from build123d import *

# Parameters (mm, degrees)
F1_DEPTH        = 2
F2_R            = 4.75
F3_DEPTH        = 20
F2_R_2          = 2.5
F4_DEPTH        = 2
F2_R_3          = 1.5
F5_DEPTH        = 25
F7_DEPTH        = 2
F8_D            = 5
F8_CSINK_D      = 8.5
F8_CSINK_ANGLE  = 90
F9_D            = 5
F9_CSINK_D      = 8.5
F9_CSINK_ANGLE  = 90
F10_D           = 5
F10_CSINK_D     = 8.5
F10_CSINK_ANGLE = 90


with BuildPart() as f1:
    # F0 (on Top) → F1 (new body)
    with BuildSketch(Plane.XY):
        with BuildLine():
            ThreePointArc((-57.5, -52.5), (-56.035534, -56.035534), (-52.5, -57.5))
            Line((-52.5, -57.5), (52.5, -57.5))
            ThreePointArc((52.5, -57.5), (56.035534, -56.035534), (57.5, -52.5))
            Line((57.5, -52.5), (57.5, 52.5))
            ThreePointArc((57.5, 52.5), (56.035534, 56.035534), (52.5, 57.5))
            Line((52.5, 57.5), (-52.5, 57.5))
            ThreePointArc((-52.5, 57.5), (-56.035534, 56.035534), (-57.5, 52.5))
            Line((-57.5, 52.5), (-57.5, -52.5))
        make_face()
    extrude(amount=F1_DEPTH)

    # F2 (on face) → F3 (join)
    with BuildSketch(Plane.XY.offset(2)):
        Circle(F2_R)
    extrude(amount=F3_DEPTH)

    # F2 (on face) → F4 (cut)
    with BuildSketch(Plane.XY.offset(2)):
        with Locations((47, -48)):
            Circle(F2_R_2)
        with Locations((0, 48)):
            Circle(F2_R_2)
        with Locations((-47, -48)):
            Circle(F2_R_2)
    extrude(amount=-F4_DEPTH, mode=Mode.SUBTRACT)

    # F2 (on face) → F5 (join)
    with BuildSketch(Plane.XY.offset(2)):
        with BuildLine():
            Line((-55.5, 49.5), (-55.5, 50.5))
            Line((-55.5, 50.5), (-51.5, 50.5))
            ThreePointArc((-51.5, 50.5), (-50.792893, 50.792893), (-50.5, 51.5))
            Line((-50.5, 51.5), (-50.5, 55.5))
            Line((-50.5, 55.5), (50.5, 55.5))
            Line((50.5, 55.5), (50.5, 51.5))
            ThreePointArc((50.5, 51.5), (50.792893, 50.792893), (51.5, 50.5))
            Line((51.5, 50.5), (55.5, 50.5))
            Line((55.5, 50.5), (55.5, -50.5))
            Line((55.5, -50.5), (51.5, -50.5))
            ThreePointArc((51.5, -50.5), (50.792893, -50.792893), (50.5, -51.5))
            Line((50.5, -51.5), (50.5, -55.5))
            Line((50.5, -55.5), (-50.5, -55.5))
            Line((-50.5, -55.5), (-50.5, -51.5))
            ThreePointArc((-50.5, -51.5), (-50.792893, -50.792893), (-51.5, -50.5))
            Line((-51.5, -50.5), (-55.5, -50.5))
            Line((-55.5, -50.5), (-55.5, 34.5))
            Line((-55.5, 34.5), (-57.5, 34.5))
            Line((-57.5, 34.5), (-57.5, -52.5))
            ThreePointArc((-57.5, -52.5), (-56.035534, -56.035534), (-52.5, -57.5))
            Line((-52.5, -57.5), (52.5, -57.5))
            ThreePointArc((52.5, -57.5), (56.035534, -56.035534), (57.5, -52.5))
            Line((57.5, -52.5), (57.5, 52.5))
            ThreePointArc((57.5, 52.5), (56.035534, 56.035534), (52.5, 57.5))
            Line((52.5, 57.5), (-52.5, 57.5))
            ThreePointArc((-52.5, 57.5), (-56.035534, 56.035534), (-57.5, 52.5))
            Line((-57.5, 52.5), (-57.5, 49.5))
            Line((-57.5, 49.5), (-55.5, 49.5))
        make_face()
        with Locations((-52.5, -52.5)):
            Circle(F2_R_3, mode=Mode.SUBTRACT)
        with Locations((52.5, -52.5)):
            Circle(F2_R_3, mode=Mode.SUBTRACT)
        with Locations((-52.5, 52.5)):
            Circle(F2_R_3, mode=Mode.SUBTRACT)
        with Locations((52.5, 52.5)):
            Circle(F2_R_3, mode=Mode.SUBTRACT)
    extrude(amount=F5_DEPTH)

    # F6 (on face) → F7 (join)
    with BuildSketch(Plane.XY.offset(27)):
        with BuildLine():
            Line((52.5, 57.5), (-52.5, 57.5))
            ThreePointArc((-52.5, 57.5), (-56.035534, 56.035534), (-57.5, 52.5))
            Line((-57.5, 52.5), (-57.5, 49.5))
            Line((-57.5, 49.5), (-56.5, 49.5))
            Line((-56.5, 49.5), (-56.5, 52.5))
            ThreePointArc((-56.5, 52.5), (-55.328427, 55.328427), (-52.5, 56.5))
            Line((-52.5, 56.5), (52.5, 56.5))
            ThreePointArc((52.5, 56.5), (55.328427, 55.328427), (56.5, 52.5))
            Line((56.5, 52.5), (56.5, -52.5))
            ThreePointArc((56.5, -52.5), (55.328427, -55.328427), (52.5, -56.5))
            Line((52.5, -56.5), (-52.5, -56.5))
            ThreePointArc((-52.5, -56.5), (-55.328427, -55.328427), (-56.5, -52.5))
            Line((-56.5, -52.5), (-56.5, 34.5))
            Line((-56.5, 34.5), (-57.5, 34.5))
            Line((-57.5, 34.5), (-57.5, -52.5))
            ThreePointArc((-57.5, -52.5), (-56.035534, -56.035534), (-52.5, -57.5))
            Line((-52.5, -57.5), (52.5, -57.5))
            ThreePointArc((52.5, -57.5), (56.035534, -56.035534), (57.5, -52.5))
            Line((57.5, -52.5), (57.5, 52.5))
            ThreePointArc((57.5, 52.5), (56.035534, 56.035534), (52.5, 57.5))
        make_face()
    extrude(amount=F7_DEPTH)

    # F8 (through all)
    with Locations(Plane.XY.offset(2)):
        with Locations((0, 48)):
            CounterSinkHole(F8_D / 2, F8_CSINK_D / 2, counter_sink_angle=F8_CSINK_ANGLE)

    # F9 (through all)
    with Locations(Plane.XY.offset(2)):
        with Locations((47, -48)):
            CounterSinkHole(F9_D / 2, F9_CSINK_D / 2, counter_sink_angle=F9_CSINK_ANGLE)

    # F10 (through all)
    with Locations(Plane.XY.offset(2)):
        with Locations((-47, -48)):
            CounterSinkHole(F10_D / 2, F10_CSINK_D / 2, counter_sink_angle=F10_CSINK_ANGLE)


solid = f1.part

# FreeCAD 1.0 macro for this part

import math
import FreeCAD as App
import Part
import Sketcher

V = App.Vector

doc = App.newDocument("Part")
body = doc.addObject("PartDesign::Body", "Body")

sketch1 = doc.addObject("Sketcher::SketchObject", "Sketch")
body.addObject(sketch1)
sketch1.AttachmentSupport = (doc.XY_Plane, [""])
sketch1.MapMode = "FlatFace"
sketch1.addGeometry(Part.ArcOfCircle(Part.Circle(V(-52.5, -52.5, 0), V(0, 0, 1), 5), math.radians(179.999996), math.radians(270.000004)), False)
sketch1.addGeometry(Part.LineSegment(V(-52.5, -57.5, 0), V(52.5, -57.5, 0)), False)
sketch1.addGeometry(Part.ArcOfCircle(Part.Circle(V(52.5, -52.5, 0), V(0, 0, 1), 5), math.radians(-90.000004), math.radians(0.000004)), False)
sketch1.addGeometry(Part.LineSegment(V(57.5, -52.5, 0), V(57.5, 52.5, 0)), False)
sketch1.addGeometry(Part.ArcOfCircle(Part.Circle(V(52.5, 52.5, 0), V(0, 0, 1), 5), math.radians(-0.000004), math.radians(90.000004)), False)
sketch1.addGeometry(Part.LineSegment(V(52.5, 57.5, 0), V(-52.5, 57.5, 0)), False)
sketch1.addGeometry(Part.ArcOfCircle(Part.Circle(V(-52.5, 52.5, 0), V(0, 0, 1), 5), math.radians(89.999996), math.radians(180.000004)), False)
sketch1.addGeometry(Part.LineSegment(V(-57.5, 52.5, 0), V(-57.5, -52.5, 0)), False)
sketch1.addConstraint(Sketcher.Constraint("Tangent", 0, 2, 1, 1))
sketch1.addConstraint(Sketcher.Constraint("Tangent", 1, 2, 2, 1))
sketch1.addConstraint(Sketcher.Constraint("Tangent", 2, 2, 3, 1))
sketch1.addConstraint(Sketcher.Constraint("Tangent", 3, 2, 4, 1))
sketch1.addConstraint(Sketcher.Constraint("Tangent", 4, 2, 5, 1))
sketch1.addConstraint(Sketcher.Constraint("Tangent", 5, 2, 6, 1))
sketch1.addConstraint(Sketcher.Constraint("Tangent", 6, 2, 7, 1))
sketch1.addConstraint(Sketcher.Constraint("Tangent", 7, 2, 0, 1))
sketch1.addConstraint(Sketcher.Constraint("Horizontal", 1))
sketch1.addConstraint(Sketcher.Constraint("Vertical", 3))
sketch1.addConstraint(Sketcher.Constraint("Horizontal", 5))
sketch1.addConstraint(Sketcher.Constraint("Vertical", 7))
sketch1.addConstraint(Sketcher.Constraint("Equal", 0, 2))
sketch1.addConstraint(Sketcher.Constraint("Equal", 2, 4))
sketch1.addConstraint(Sketcher.Constraint("Equal", 4, 6))
sketch1.addConstraint(Sketcher.Constraint("Symmetric", 0, 3, 4, 3, -1, 1))
sketch1.addConstraint(Sketcher.Constraint("Equal", 5, 3))
sketch1.addConstraint(Sketcher.Constraint("Radius", 0, 5.0))
sketch1.addConstraint(Sketcher.Constraint("DistanceX", 1, 1, 1, 2, 105.0))
pad1 = doc.addObject("PartDesign::Pad", "Pad")
body.addObject(pad1)
pad1.Profile = sketch1
pad1.Length = 2

sketch2 = doc.addObject("Sketcher::SketchObject", "Sketch001")
body.addObject(sketch2)
sketch2.AttachmentSupport = (doc.XY_Plane, [""])
sketch2.MapMode = "FlatFace"
sketch2.AttachmentOffset = App.Placement(V(0, 0, 2), App.Rotation())
sketch2.addGeometry(Part.Circle(V(0, 0, 0), V(0, 0, 1), 4.75), False)
sketch2.addConstraint(Sketcher.Constraint("Coincident", 0, 3, -1, 1))
sketch2.addConstraint(Sketcher.Constraint("Diameter", 0, 9.5))
pad2 = doc.addObject("PartDesign::Pad", "Pad001")
body.addObject(pad2)
pad2.Profile = sketch2
pad2.Length = 20

sketch3 = doc.addObject("Sketcher::SketchObject", "Sketch002")
body.addObject(sketch3)
sketch3.AttachmentSupport = (doc.XY_Plane, [""])
sketch3.MapMode = "FlatFace"
sketch3.AttachmentOffset = App.Placement(V(0, 0, 2), App.Rotation())
sketch3.addGeometry(Part.Circle(V(47, -48, 0), V(0, 0, 1), 2.5), False)
sketch3.addGeometry(Part.Circle(V(0, 48, 0), V(0, 0, 1), 2.5), False)
sketch3.addGeometry(Part.Circle(V(-47, -48, 0), V(0, 0, 1), 2.5), False)
sketch3.addConstraint(Sketcher.Constraint("Equal", 0, 1))
sketch3.addConstraint(Sketcher.Constraint("Equal", 1, 2))
sketch3.addConstraint(Sketcher.Constraint("Symmetric", 0, 3, 2, 3, -2))
sketch3.addConstraint(Sketcher.Constraint("PointOnObject", 1, 3, -2))
sketch3.addConstraint(Sketcher.Constraint("Diameter", 0, 5.0))
sketch3.addConstraint(Sketcher.Constraint("DistanceX", -1, 1, 0, 3, 47.0))
sketch3.addConstraint(Sketcher.Constraint("DistanceY", 0, 3, -1, 1, 48.0))
sketch3.addConstraint(Sketcher.Constraint("DistanceY", -1, 1, 1, 3, 48.0))
pocket1 = doc.addObject("PartDesign::Pocket", "Pocket")
body.addObject(pocket1)
pocket1.Profile = sketch3
pocket1.Length = 2

sketch4 = doc.addObject("Sketcher::SketchObject", "Sketch003")
body.addObject(sketch4)
sketch4.AttachmentSupport = (doc.XY_Plane, [""])
sketch4.MapMode = "FlatFace"
sketch4.AttachmentOffset = App.Placement(V(0, 0, 2), App.Rotation())
sketch4.addGeometry(Part.LineSegment(V(-55.5, 49.5, 0), V(-55.5, 50.5, 0)), False)
sketch4.addGeometry(Part.LineSegment(V(-55.5, 50.5, 0), V(-51.5, 50.5, 0)), False)
sketch4.addGeometry(Part.ArcOfCircle(Part.Circle(V(-51.499999, 51.499999, 0), V(0, 0, 1), 0.999999), math.radians(-90.000043), math.radians(0.000043)), False)
sketch4.addGeometry(Part.LineSegment(V(-50.5, 51.5, 0), V(-50.5, 55.5, 0)), False)
sketch4.addGeometry(Part.LineSegment(V(-50.5, 55.5, 0), V(50.5, 55.5, 0)), False)
sketch4.addGeometry(Part.LineSegment(V(50.5, 55.5, 0), V(50.5, 51.5, 0)), False)
sketch4.addGeometry(Part.ArcOfCircle(Part.Circle(V(51.499999, 51.499999, 0), V(0, 0, 1), 0.999999), math.radians(179.999957), math.radians(270.000043)), False)
sketch4.addGeometry(Part.LineSegment(V(51.5, 50.5, 0), V(55.5, 50.5, 0)), False)
sketch4.addGeometry(Part.LineSegment(V(55.5, 50.5, 0), V(55.5, -50.5, 0)), False)
sketch4.addGeometry(Part.LineSegment(V(55.5, -50.5, 0), V(51.5, -50.5, 0)), False)
sketch4.addGeometry(Part.ArcOfCircle(Part.Circle(V(51.499999, -51.499999, 0), V(0, 0, 1), 0.999999), math.radians(89.999957), math.radians(180.000043)), False)
sketch4.addGeometry(Part.LineSegment(V(50.5, -51.5, 0), V(50.5, -55.5, 0)), False)
sketch4.addGeometry(Part.LineSegment(V(50.5, -55.5, 0), V(-50.5, -55.5, 0)), False)
sketch4.addGeometry(Part.LineSegment(V(-50.5, -55.5, 0), V(-50.5, -51.5, 0)), False)
sketch4.addGeometry(Part.ArcOfCircle(Part.Circle(V(-51.499999, -51.499999, 0), V(0, 0, 1), 0.999999), math.radians(-0.000043), math.radians(90.000043)), False)
sketch4.addGeometry(Part.LineSegment(V(-51.5, -50.5, 0), V(-55.5, -50.5, 0)), False)
sketch4.addGeometry(Part.LineSegment(V(-55.5, -50.5, 0), V(-55.5, 34.5, 0)), False)
sketch4.addGeometry(Part.LineSegment(V(-55.5, 34.5, 0), V(-57.5, 34.5, 0)), False)
sketch4.addGeometry(Part.LineSegment(V(-57.5, 34.5, 0), V(-57.5, -52.5, 0)), False)
sketch4.addGeometry(Part.ArcOfCircle(Part.Circle(V(-52.5, -52.5, 0), V(0, 0, 1), 5), math.radians(179.999996), math.radians(270.000004)), False)
sketch4.addGeometry(Part.LineSegment(V(-52.5, -57.5, 0), V(52.5, -57.5, 0)), False)
sketch4.addGeometry(Part.ArcOfCircle(Part.Circle(V(52.5, -52.5, 0), V(0, 0, 1), 5), math.radians(-90.000004), math.radians(0.000004)), False)
sketch4.addGeometry(Part.LineSegment(V(57.5, -52.5, 0), V(57.5, 52.5, 0)), False)
sketch4.addGeometry(Part.ArcOfCircle(Part.Circle(V(52.5, 52.5, 0), V(0, 0, 1), 5), math.radians(-0.000004), math.radians(90.000004)), False)
sketch4.addGeometry(Part.LineSegment(V(52.5, 57.5, 0), V(-52.5, 57.5, 0)), False)
sketch4.addGeometry(Part.ArcOfCircle(Part.Circle(V(-52.5, 52.5, 0), V(0, 0, 1), 5), math.radians(89.999996), math.radians(180.000004)), False)
sketch4.addGeometry(Part.LineSegment(V(-57.5, 52.5, 0), V(-57.5, 49.5, 0)), False)
sketch4.addGeometry(Part.LineSegment(V(-57.5, 49.5, 0), V(-55.5, 49.5, 0)), False)
sketch4.addGeometry(Part.Circle(V(-52.5, -52.5, 0), V(0, 0, 1), 1.5), False)
sketch4.addGeometry(Part.Circle(V(52.5, -52.5, 0), V(0, 0, 1), 1.5), False)
sketch4.addGeometry(Part.Circle(V(-52.5, 52.5, 0), V(0, 0, 1), 1.5), False)
sketch4.addGeometry(Part.Circle(V(52.5, 52.5, 0), V(0, 0, 1), 1.5), False)
sketch4.addConstraint(Sketcher.Constraint("Coincident", 0, 2, 1, 1))
sketch4.addConstraint(Sketcher.Constraint("Tangent", 1, 2, 2, 1))
sketch4.addConstraint(Sketcher.Constraint("Tangent", 2, 2, 3, 1))
sketch4.addConstraint(Sketcher.Constraint("Coincident", 3, 2, 4, 1))
sketch4.addConstraint(Sketcher.Constraint("Coincident", 4, 2, 5, 1))
sketch4.addConstraint(Sketcher.Constraint("Tangent", 5, 2, 6, 1))
sketch4.addConstraint(Sketcher.Constraint("Tangent", 6, 2, 7, 1))
sketch4.addConstraint(Sketcher.Constraint("Coincident", 7, 2, 8, 1))
sketch4.addConstraint(Sketcher.Constraint("Coincident", 8, 2, 9, 1))
sketch4.addConstraint(Sketcher.Constraint("Tangent", 9, 2, 10, 1))
sketch4.addConstraint(Sketcher.Constraint("Tangent", 10, 2, 11, 1))
sketch4.addConstraint(Sketcher.Constraint("Coincident", 11, 2, 12, 1))
sketch4.addConstraint(Sketcher.Constraint("Coincident", 12, 2, 13, 1))
sketch4.addConstraint(Sketcher.Constraint("Tangent", 13, 2, 14, 1))
sketch4.addConstraint(Sketcher.Constraint("Tangent", 14, 2, 15, 1))
sketch4.addConstraint(Sketcher.Constraint("Coincident", 15, 2, 16, 1))
sketch4.addConstraint(Sketcher.Constraint("Coincident", 16, 2, 17, 1))
sketch4.addConstraint(Sketcher.Constraint("Coincident", 17, 2, 18, 1))
sketch4.addConstraint(Sketcher.Constraint("Tangent", 18, 2, 19, 1))
sketch4.addConstraint(Sketcher.Constraint("Tangent", 19, 2, 20, 1))
sketch4.addConstraint(Sketcher.Constraint("Tangent", 20, 2, 21, 1))
sketch4.addConstraint(Sketcher.Constraint("Tangent", 21, 2, 22, 1))
sketch4.addConstraint(Sketcher.Constraint("Tangent", 22, 2, 23, 1))
sketch4.addConstraint(Sketcher.Constraint("Tangent", 23, 2, 24, 1))
sketch4.addConstraint(Sketcher.Constraint("Tangent", 24, 2, 25, 1))
sketch4.addConstraint(Sketcher.Constraint("Tangent", 25, 2, 26, 1))
sketch4.addConstraint(Sketcher.Constraint("Coincident", 26, 2, 27, 1))
sketch4.addConstraint(Sketcher.Constraint("Coincident", 27, 2, 0, 1))
sketch4.addConstraint(Sketcher.Constraint("Vertical", 0))
sketch4.addConstraint(Sketcher.Constraint("Horizontal", 1))
sketch4.addConstraint(Sketcher.Constraint("Vertical", 3))
sketch4.addConstraint(Sketcher.Constraint("Horizontal", 4))
sketch4.addConstraint(Sketcher.Constraint("Vertical", 5))
sketch4.addConstraint(Sketcher.Constraint("Horizontal", 7))
sketch4.addConstraint(Sketcher.Constraint("Vertical", 8))
sketch4.addConstraint(Sketcher.Constraint("Horizontal", 9))
sketch4.addConstraint(Sketcher.Constraint("Vertical", 11))
sketch4.addConstraint(Sketcher.Constraint("Horizontal", 12))
sketch4.addConstraint(Sketcher.Constraint("Vertical", 13))
sketch4.addConstraint(Sketcher.Constraint("Horizontal", 15))
sketch4.addConstraint(Sketcher.Constraint("Vertical", 16))
sketch4.addConstraint(Sketcher.Constraint("Horizontal", 17))
sketch4.addConstraint(Sketcher.Constraint("Vertical", 18))
sketch4.addConstraint(Sketcher.Constraint("Horizontal", 20))
sketch4.addConstraint(Sketcher.Constraint("Vertical", 22))
sketch4.addConstraint(Sketcher.Constraint("Horizontal", 24))
sketch4.addConstraint(Sketcher.Constraint("Vertical", 26))
sketch4.addConstraint(Sketcher.Constraint("Horizontal", 27))
sketch4.addConstraint(Sketcher.Constraint("Coincident", 28, 3, 19, 3))
sketch4.addConstraint(Sketcher.Constraint("Coincident", 29, 3, 21, 3))
sketch4.addConstraint(Sketcher.Constraint("Coincident", 30, 3, 25, 3))
sketch4.addConstraint(Sketcher.Constraint("Coincident", 31, 3, 23, 3))
sketch4.addConstraint(Sketcher.Constraint("Equal", 2, 6))
sketch4.addConstraint(Sketcher.Constraint("Equal", 6, 10))
sketch4.addConstraint(Sketcher.Constraint("Equal", 10, 14))
sketch4.addConstraint(Sketcher.Constraint("Equal", 19, 21))
sketch4.addConstraint(Sketcher.Constraint("Equal", 21, 23))
sketch4.addConstraint(Sketcher.Constraint("Equal", 23, 25))
sketch4.addConstraint(Sketcher.Constraint("Equal", 28, 29))
sketch4.addConstraint(Sketcher.Constraint("Equal", 29, 30))
sketch4.addConstraint(Sketcher.Constraint("Equal", 30, 31))
sketch4.addConstraint(Sketcher.Constraint("Symmetric", 2, 3, 10, 3, -1, 1))
sketch4.addConstraint(Sketcher.Constraint("Symmetric", 6, 3, 14, 3, -1, 1))
sketch4.addConstraint(Sketcher.Constraint("Symmetric", 19, 3, 23, 3, -1, 1))
sketch4.addConstraint(Sketcher.Constraint("Symmetric", 2, 3, 6, 3, -2))
sketch4.addConstraint(Sketcher.Constraint("Vertical", 19, 3, 25, 3))
sketch4.addConstraint(Sketcher.Constraint("Vertical", 0, 2, 15, 2))
sketch4.addConstraint(Sketcher.Constraint("Equal", 1, 7))
sketch4.addConstraint(Sketcher.Constraint("Equal", 15, 3))
sketch4.addConstraint(Sketcher.Constraint("Equal", 12, 8))
sketch4.addConstraint(Sketcher.Constraint("Equal", 5, 11))
sketch4.addConstraint(Sketcher.Constraint("Equal", 24, 22))
sketch4.addConstraint(Sketcher.Constraint("Diameter", 28, 3.0))
sketch4.addConstraint(Sketcher.Constraint("Radius", 2, 0.999999))
sketch4.addConstraint(Sketcher.Constraint("Radius", 19, 5.0))
sketch4.addConstraint(Sketcher.Constraint("DistanceX", 1, 1, 1, 2, 4.0))
sketch4.addConstraint(Sketcher.Constraint("DistanceX", 4, 1, 4, 2, 101.0))
sketch4.addConstraint(Sketcher.Constraint("DistanceX", 17, 2, 17, 1, 2.0))
sketch4.addConstraint(Sketcher.Constraint("DistanceY", 0, 1, 0, 2, 1.0))
sketch4.addConstraint(Sketcher.Constraint("DistanceY", 16, 1, 16, 2, 85.0))
pad3 = doc.addObject("PartDesign::Pad", "Pad002")
body.addObject(pad3)
pad3.Profile = sketch4
pad3.Length = 25

sketch5 = doc.addObject("Sketcher::SketchObject", "Sketch004")
body.addObject(sketch5)
sketch5.AttachmentSupport = (doc.XY_Plane, [""])
sketch5.MapMode = "FlatFace"
sketch5.AttachmentOffset = App.Placement(V(0, 0, 27), App.Rotation())
sketch5.addGeometry(Part.LineSegment(V(52.5, 57.5, 0), V(-52.5, 57.5, 0)), False)
sketch5.addGeometry(Part.ArcOfCircle(Part.Circle(V(-52.5, 52.5, 0), V(0, 0, 1), 5), math.radians(89.999996), math.radians(180.000004)), False)
sketch5.addGeometry(Part.LineSegment(V(-57.5, 52.5, 0), V(-57.5, 49.5, 0)), False)
sketch5.addGeometry(Part.LineSegment(V(-57.5, 49.5, 0), V(-56.5, 49.5, 0)), False)
sketch5.addGeometry(Part.LineSegment(V(-56.5, 49.5, 0), V(-56.5, 52.5, 0)), False)
sketch5.addGeometry(Part.ArcOfCircle(Part.Circle(V(-52.5, 52.5, 0), V(0, 0, 1), 4), math.radians(90.000006), math.radians(179.999994)), False)
sketch5.addGeometry(Part.LineSegment(V(-52.5, 56.5, 0), V(52.5, 56.5, 0)), False)
sketch5.addGeometry(Part.ArcOfCircle(Part.Circle(V(52.5, 52.5, 0), V(0, 0, 1), 4), math.radians(0.000006), math.radians(89.999994)), False)
sketch5.addGeometry(Part.LineSegment(V(56.5, 52.5, 0), V(56.5, -52.5, 0)), False)
sketch5.addGeometry(Part.ArcOfCircle(Part.Circle(V(52.5, -52.5, 0), V(0, 0, 1), 4), math.radians(-89.999994), math.radians(-0.000006)), False)
sketch5.addGeometry(Part.LineSegment(V(52.5, -56.5, 0), V(-52.5, -56.5, 0)), False)
sketch5.addGeometry(Part.ArcOfCircle(Part.Circle(V(-52.5, -52.5, 0), V(0, 0, 1), 4), math.radians(-179.999994), math.radians(-90.000006)), False)
sketch5.addGeometry(Part.LineSegment(V(-56.5, -52.5, 0), V(-56.5, 34.5, 0)), False)
sketch5.addGeometry(Part.LineSegment(V(-56.5, 34.5, 0), V(-57.5, 34.5, 0)), False)
sketch5.addGeometry(Part.LineSegment(V(-57.5, 34.5, 0), V(-57.5, -52.5, 0)), False)
sketch5.addGeometry(Part.ArcOfCircle(Part.Circle(V(-52.5, -52.5, 0), V(0, 0, 1), 5), math.radians(179.999996), math.radians(270.000004)), False)
sketch5.addGeometry(Part.LineSegment(V(-52.5, -57.5, 0), V(52.5, -57.5, 0)), False)
sketch5.addGeometry(Part.ArcOfCircle(Part.Circle(V(52.5, -52.5, 0), V(0, 0, 1), 5), math.radians(-90.000004), math.radians(0.000004)), False)
sketch5.addGeometry(Part.LineSegment(V(57.5, -52.5, 0), V(57.5, 52.5, 0)), False)
sketch5.addGeometry(Part.ArcOfCircle(Part.Circle(V(52.5, 52.5, 0), V(0, 0, 1), 5), math.radians(-0.000004), math.radians(90.000004)), False)
sketch5.addConstraint(Sketcher.Constraint("Tangent", 0, 2, 1, 1))
sketch5.addConstraint(Sketcher.Constraint("Tangent", 1, 2, 2, 1))
sketch5.addConstraint(Sketcher.Constraint("Coincident", 2, 2, 3, 1))
sketch5.addConstraint(Sketcher.Constraint("Coincident", 3, 2, 4, 1))
sketch5.addConstraint(Sketcher.Constraint("Tangent", 4, 2, 5, 2))
sketch5.addConstraint(Sketcher.Constraint("Tangent", 5, 1, 6, 1))
sketch5.addConstraint(Sketcher.Constraint("Tangent", 6, 2, 7, 2))
sketch5.addConstraint(Sketcher.Constraint("Tangent", 7, 1, 8, 1))
sketch5.addConstraint(Sketcher.Constraint("Tangent", 8, 2, 9, 2))
sketch5.addConstraint(Sketcher.Constraint("Tangent", 9, 1, 10, 1))
sketch5.addConstraint(Sketcher.Constraint("Tangent", 10, 2, 11, 2))
sketch5.addConstraint(Sketcher.Constraint("Tangent", 11, 1, 12, 1))
sketch5.addConstraint(Sketcher.Constraint("Coincident", 12, 2, 13, 1))
sketch5.addConstraint(Sketcher.Constraint("Coincident", 13, 2, 14, 1))
sketch5.addConstraint(Sketcher.Constraint("Tangent", 14, 2, 15, 1))
sketch5.addConstraint(Sketcher.Constraint("Tangent", 15, 2, 16, 1))
sketch5.addConstraint(Sketcher.Constraint("Tangent", 16, 2, 17, 1))
sketch5.addConstraint(Sketcher.Constraint("Tangent", 17, 2, 18, 1))
sketch5.addConstraint(Sketcher.Constraint("Tangent", 18, 2, 19, 1))
sketch5.addConstraint(Sketcher.Constraint("Tangent", 19, 2, 0, 1))
sketch5.addConstraint(Sketcher.Constraint("Horizontal", 0))
sketch5.addConstraint(Sketcher.Constraint("Vertical", 2))
sketch5.addConstraint(Sketcher.Constraint("Horizontal", 3))
sketch5.addConstraint(Sketcher.Constraint("Vertical", 4))
sketch5.addConstraint(Sketcher.Constraint("Horizontal", 6))
sketch5.addConstraint(Sketcher.Constraint("Vertical", 8))
sketch5.addConstraint(Sketcher.Constraint("Horizontal", 10))
sketch5.addConstraint(Sketcher.Constraint("Vertical", 12))
sketch5.addConstraint(Sketcher.Constraint("Horizontal", 13))
sketch5.addConstraint(Sketcher.Constraint("Vertical", 14))
sketch5.addConstraint(Sketcher.Constraint("Horizontal", 16))
sketch5.addConstraint(Sketcher.Constraint("Vertical", 18))
sketch5.addConstraint(Sketcher.Constraint("Coincident", 5, 3, 1, 3))
sketch5.addConstraint(Sketcher.Constraint("Coincident", 15, 3, 11, 3))
sketch5.addConstraint(Sketcher.Constraint("Coincident", 17, 3, 9, 3))
sketch5.addConstraint(Sketcher.Constraint("Coincident", 19, 3, 7, 3))
sketch5.addConstraint(Sketcher.Constraint("Equal", 5, 7))
sketch5.addConstraint(Sketcher.Constraint("Equal", 7, 9))
sketch5.addConstraint(Sketcher.Constraint("Equal", 9, 11))
sketch5.addConstraint(Sketcher.Constraint("Symmetric", 1, 3, 9, 3, -1, 1))
sketch5.addConstraint(Sketcher.Constraint("Vertical", 5, 3, 11, 3))
sketch5.addConstraint(Sketcher.Constraint("Equal", 16, 8))
sketch5.addConstraint(Sketcher.Constraint("Radius", 1, 5.0))
sketch5.addConstraint(Sketcher.Constraint("Radius", 5, 4.0))
sketch5.addConstraint(Sketcher.Constraint("DistanceX", 0, 2, 0, 1, 105.0))
sketch5.addConstraint(Sketcher.Constraint("DistanceY", 2, 2, 2, 1, 3.0))
sketch5.addConstraint(Sketcher.Constraint("DistanceY", 12, 1, 12, 2, 87.0))
pad4 = doc.addObject("PartDesign::Pad", "Pad003")
body.addObject(pad4)
pad4.Profile = sketch5
pad4.Length = 2

sketch6 = doc.addObject("Sketcher::SketchObject", "Sketch005")
body.addObject(sketch6)
sketch6.AttachmentSupport = (doc.XY_Plane, [""])
sketch6.MapMode = "FlatFace"
sketch6.AttachmentOffset = App.Placement(V(0, 0, 2), App.Rotation())
sketch6.addGeometry(Part.Circle(V(0, 48, 0), V(0, 0, 1), 2.5), False)
sketch6.addConstraint(Sketcher.Constraint("PointOnObject", 0, 3, -2))
sketch6.addConstraint(Sketcher.Constraint("Diameter", 0, 5.0))
sketch6.addConstraint(Sketcher.Constraint("DistanceY", -1, 1, 0, 3, 48.0))
doc.recompute()
hole = doc.addObject("PartDesign::Hole", "Hole")
body.addObject(hole)
hole.Profile = sketch6
hole.ThreadType = "None"
hole.Diameter = 5
hole.DepthType = "ThroughAll"
hole.HoleCutType = "Countersink"
hole.HoleCutDiameter = 8.5
hole.HoleCutCountersinkAngle = 90

sketch7 = doc.addObject("Sketcher::SketchObject", "Sketch006")
body.addObject(sketch7)
sketch7.AttachmentSupport = (doc.XY_Plane, [""])
sketch7.MapMode = "FlatFace"
sketch7.AttachmentOffset = App.Placement(V(0, 0, 2), App.Rotation())
sketch7.addGeometry(Part.Circle(V(47, -48, 0), V(0, 0, 1), 2.5), False)
sketch7.addConstraint(Sketcher.Constraint("Diameter", 0, 5.0))
sketch7.addConstraint(Sketcher.Constraint("DistanceX", -1, 1, 0, 3, 47.0))
sketch7.addConstraint(Sketcher.Constraint("DistanceY", 0, 3, -1, 1, 48.0))
doc.recompute()
hole2 = doc.addObject("PartDesign::Hole", "Hole001")
body.addObject(hole2)
hole2.Profile = sketch7
hole2.ThreadType = "None"
hole2.Diameter = 5
hole2.DepthType = "ThroughAll"
hole2.HoleCutType = "Countersink"
hole2.HoleCutDiameter = 8.5
hole2.HoleCutCountersinkAngle = 90

sketch8 = doc.addObject("Sketcher::SketchObject", "Sketch007")
body.addObject(sketch8)
sketch8.AttachmentSupport = (doc.XY_Plane, [""])
sketch8.MapMode = "FlatFace"
sketch8.AttachmentOffset = App.Placement(V(0, 0, 2), App.Rotation())
sketch8.addGeometry(Part.Circle(V(-47, -48, 0), V(0, 0, 1), 2.5), False)
sketch8.addConstraint(Sketcher.Constraint("Diameter", 0, 5.0))
sketch8.addConstraint(Sketcher.Constraint("DistanceX", 0, 3, -1, 1, 47.0))
sketch8.addConstraint(Sketcher.Constraint("DistanceY", 0, 3, -1, 1, 48.0))
doc.recompute()
hole3 = doc.addObject("PartDesign::Hole", "Hole002")
body.addObject(hole3)
hole3.Profile = sketch8
hole3.ThreadType = "None"
hole3.Diameter = 5
hole3.DepthType = "ThroughAll"
hole3.HoleCutType = "Countersink"
hole3.HoleCutDiameter = 8.5
hole3.HoleCutCountersinkAngle = 90

doc.recompute()
